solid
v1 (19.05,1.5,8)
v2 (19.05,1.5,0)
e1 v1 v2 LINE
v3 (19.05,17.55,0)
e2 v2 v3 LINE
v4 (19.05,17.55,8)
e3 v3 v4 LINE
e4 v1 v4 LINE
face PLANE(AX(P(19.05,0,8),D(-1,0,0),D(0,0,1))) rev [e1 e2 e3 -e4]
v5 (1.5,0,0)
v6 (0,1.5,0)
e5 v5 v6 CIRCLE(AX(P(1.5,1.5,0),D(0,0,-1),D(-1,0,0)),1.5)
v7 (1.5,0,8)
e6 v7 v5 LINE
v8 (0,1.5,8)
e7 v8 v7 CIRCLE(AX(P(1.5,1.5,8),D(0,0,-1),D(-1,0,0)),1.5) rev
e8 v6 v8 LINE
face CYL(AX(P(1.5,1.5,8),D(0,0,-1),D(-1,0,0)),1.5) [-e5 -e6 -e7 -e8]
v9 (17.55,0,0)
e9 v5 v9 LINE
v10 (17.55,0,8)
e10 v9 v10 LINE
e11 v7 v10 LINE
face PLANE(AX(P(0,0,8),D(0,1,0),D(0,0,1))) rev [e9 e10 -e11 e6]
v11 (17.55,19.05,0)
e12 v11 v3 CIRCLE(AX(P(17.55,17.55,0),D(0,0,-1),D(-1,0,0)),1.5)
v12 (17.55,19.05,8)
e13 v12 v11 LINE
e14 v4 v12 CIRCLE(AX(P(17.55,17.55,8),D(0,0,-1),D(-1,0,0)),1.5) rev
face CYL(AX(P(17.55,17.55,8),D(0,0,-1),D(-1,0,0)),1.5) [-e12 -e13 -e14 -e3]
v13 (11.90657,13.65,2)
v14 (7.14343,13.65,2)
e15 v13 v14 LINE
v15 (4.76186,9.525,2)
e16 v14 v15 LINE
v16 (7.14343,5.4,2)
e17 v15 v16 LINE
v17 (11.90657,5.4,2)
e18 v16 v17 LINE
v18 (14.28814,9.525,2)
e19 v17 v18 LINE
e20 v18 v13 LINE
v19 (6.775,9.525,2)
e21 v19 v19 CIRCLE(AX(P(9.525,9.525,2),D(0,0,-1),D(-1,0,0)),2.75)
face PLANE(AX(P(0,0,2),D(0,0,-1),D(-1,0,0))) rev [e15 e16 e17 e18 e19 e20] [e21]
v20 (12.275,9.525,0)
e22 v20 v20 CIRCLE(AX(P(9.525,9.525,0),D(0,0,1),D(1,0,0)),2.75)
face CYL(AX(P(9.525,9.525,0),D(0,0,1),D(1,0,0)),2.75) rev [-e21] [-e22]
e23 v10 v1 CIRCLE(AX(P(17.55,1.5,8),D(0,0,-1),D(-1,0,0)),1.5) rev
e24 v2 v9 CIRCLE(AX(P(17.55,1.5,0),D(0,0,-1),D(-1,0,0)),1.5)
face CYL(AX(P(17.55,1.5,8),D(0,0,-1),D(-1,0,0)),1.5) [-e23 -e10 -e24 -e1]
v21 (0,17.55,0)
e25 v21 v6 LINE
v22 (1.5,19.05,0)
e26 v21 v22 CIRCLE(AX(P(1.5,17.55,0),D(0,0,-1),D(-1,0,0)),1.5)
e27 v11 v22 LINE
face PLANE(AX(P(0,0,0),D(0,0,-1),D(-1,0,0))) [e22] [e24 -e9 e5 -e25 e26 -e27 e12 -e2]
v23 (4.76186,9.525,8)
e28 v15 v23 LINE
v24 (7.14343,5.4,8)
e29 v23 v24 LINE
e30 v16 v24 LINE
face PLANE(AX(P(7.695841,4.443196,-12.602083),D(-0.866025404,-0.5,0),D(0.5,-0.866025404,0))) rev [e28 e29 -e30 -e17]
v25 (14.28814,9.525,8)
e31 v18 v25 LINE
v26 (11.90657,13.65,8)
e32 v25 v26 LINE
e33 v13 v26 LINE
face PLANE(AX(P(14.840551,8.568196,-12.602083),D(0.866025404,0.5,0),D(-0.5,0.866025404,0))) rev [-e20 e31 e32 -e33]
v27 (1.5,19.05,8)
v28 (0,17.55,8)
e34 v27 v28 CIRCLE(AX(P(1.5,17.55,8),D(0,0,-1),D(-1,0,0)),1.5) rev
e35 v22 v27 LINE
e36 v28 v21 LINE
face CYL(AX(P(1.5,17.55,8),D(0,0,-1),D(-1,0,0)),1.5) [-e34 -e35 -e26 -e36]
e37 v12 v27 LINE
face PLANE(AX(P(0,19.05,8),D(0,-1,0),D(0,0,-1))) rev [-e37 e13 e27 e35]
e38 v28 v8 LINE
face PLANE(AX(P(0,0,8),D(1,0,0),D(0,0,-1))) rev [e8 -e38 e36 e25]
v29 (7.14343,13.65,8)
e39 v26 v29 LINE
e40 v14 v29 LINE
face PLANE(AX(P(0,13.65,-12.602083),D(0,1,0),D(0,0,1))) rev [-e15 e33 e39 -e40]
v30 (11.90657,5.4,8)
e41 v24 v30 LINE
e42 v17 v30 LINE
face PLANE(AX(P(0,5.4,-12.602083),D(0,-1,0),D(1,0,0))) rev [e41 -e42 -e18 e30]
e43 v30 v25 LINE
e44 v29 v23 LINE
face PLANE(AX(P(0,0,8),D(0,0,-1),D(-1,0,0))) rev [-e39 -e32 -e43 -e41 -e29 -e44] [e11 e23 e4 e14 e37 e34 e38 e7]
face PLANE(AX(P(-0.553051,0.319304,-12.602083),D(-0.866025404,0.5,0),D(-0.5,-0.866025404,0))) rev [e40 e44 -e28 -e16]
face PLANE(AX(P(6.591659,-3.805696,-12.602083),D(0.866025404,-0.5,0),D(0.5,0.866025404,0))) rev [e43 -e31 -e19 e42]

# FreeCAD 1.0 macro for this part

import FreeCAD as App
import Part
import Sketcher

V = App.Vector
Q = App.Units.Quantity


def edges_at(feature, points):
    """Names of the edges that pass closest to the given points."""
    edges = feature.Shape.Edges
    near = lambda p: min(range(len(edges)), key=lambda i: edges[i].distToShape(Part.Vertex(*p))[0])
    return sorted({f"Edge{near(p) + 1}" for p in points})

doc = App.newDocument("Part")
body = doc.addObject("PartDesign::Body", "Body")

# Sketch on XY plane
sketch1 = body.newObject("Sketcher::SketchObject", "Sketch")
sketch1.AttachmentSupport = (doc.getObject("XY_Plane"), [""])
sketch1.MapMode = "FlatFace"
sketch1.addGeometry([
    Part.LineSegment(V(0, 19, 0), V(0, 0, 0)),
    Part.LineSegment(V(0, 0, 0), V(19, 0, 0)),
    Part.LineSegment(V(19, 0, 0), V(19, 19, 0)),
    Part.LineSegment(V(19, 19, 0), V(0, 19, 0)),
], False)
sketch1.addConstraint([
    Sketcher.Constraint("Coincident", 0, 2, 1, 1),
    Sketcher.Constraint("Coincident", 1, 2, 2, 1),
    Sketcher.Constraint("Coincident", 2, 2, 3, 1),
    Sketcher.Constraint("Coincident", 3, 2, 0, 1),
    Sketcher.Constraint("Vertical", 0),
    Sketcher.Constraint("Horizontal", 1),
    Sketcher.Constraint("Vertical", 2),
    Sketcher.Constraint("Horizontal", 3),
    Sketcher.Constraint("Coincident", 0, 2, -1, 1),
    Sketcher.Constraint("Equal", 3, 0),
    Sketcher.Constraint("DistanceX", 1, 1, 1, 2, Q("19.05 mm")),
])
pad1 = body.newObject("PartDesign::Pad", "Pad")
pad1.Profile = sketch1
pad1.Length = 8

# Sketch on XY plane
sketch2 = body.newObject("Sketcher::SketchObject", "Sketch001")
sketch2.AttachmentSupport = (doc.getObject("XY_Plane"), [""])
sketch2.MapMode = "FlatFace"
sketch2.AttachmentOffset = App.Placement(V(0, 0, 8), App.Rotation())
sketch2.addGeometry([
    Part.LineSegment(V(7.1, 5.4, 0), V(11.9, 5.4, 0)),  # 0
    Part.LineSegment(V(11.9, 5.4, 0), V(14.3, 9.5, 0)),  # 1
    Part.LineSegment(V(14.3, 9.5, 0), V(11.9, 13.7, 0)),  # 2
    Part.LineSegment(V(11.9, 13.7, 0), V(7.1, 13.7, 0)),  # 3
    Part.LineSegment(V(7.1, 13.7, 0), V(4.8, 9.5, 0)),  # 4
    Part.LineSegment(V(4.8, 9.5, 0), V(7.1, 5.4, 0)),  # 5
], False)
sketch2.addConstraint([
    Sketcher.Constraint("Coincident", 0, 2, 1, 1),
    Sketcher.Constraint("Coincident", 1, 2, 2, 1),
    Sketcher.Constraint("Coincident", 2, 2, 3, 1),
    Sketcher.Constraint("Coincident", 3, 2, 4, 1),
    Sketcher.Constraint("Coincident", 4, 2, 5, 1),
    Sketcher.Constraint("Coincident", 5, 2, 0, 1),
    Sketcher.Constraint("Horizontal", 0),
    Sketcher.Constraint("Horizontal", 3),
    Sketcher.Constraint("Parallel", 1, 4),
    Sketcher.Constraint("Parallel", 2, 5),
    Sketcher.Constraint("Horizontal", 1, 2, 4, 2),
    Sketcher.Constraint("Vertical", 0, 2, 2, 2),
    Sketcher.Constraint("Vertical", 3, 2, 5, 2),
    Sketcher.Constraint("Angle", 1, Q("60 deg")),
    Sketcher.Constraint("DistanceY", -1, 1, 0, 2, Q("5.4 mm")),
    Sketcher.Constraint("DistanceY", -1, 1, 2, 2, Q("13.65 mm")),
    Sketcher.Constraint("DistanceX", 0, 1, 0, 2, Q("4.76314 mm")),
    Sketcher.Constraint("DistanceX", -1, 1, 0, 2, Q("11.90657 mm")),
])
pocket1 = body.newObject("PartDesign::Pocket", "Pocket")
pocket1.Profile = sketch2
pocket1.Length = 6

# Sketch on XY plane
sketch3 = body.newObject("Sketcher::SketchObject", "Sketch002")
sketch3.AttachmentSupport = (doc.getObject("XY_Plane"), [""])
sketch3.MapMode = "FlatFace"
sketch3.AttachmentOffset = App.Placement(V(0, 0, 8), App.Rotation())
sketch3.addGeometry(Part.Circle(V(9.5, 9.5, 0), V(0, 0, 1), 2.8), False)
sketch3.addConstraint([
    Sketcher.Constraint("Diameter", 0, Q("5.5 mm")),
    Sketcher.Constraint("DistanceX", -1, 1, 0, 3, Q("9.525 mm")),
    Sketcher.Constraint("DistanceY", -1, 1, 0, 3, Q("9.525 mm")),
])
pocket2 = body.newObject("PartDesign::Pocket", "Pocket001")
pocket2.Profile = sketch3
pocket2.Type = "ThroughAll"
pocket2.Midplane = True
doc.recompute()

fillet = body.newObject("PartDesign::Fillet", "Fillet")
fillet.Base = (pocket2, edges_at(pocket2, [
    (0, 19.05, 4),
    (19.05, 19.05, 4),
    (19.05, 0, 4),
    (0, 0, 4),
]))
fillet.Radius = 1.5

doc.recompute()
